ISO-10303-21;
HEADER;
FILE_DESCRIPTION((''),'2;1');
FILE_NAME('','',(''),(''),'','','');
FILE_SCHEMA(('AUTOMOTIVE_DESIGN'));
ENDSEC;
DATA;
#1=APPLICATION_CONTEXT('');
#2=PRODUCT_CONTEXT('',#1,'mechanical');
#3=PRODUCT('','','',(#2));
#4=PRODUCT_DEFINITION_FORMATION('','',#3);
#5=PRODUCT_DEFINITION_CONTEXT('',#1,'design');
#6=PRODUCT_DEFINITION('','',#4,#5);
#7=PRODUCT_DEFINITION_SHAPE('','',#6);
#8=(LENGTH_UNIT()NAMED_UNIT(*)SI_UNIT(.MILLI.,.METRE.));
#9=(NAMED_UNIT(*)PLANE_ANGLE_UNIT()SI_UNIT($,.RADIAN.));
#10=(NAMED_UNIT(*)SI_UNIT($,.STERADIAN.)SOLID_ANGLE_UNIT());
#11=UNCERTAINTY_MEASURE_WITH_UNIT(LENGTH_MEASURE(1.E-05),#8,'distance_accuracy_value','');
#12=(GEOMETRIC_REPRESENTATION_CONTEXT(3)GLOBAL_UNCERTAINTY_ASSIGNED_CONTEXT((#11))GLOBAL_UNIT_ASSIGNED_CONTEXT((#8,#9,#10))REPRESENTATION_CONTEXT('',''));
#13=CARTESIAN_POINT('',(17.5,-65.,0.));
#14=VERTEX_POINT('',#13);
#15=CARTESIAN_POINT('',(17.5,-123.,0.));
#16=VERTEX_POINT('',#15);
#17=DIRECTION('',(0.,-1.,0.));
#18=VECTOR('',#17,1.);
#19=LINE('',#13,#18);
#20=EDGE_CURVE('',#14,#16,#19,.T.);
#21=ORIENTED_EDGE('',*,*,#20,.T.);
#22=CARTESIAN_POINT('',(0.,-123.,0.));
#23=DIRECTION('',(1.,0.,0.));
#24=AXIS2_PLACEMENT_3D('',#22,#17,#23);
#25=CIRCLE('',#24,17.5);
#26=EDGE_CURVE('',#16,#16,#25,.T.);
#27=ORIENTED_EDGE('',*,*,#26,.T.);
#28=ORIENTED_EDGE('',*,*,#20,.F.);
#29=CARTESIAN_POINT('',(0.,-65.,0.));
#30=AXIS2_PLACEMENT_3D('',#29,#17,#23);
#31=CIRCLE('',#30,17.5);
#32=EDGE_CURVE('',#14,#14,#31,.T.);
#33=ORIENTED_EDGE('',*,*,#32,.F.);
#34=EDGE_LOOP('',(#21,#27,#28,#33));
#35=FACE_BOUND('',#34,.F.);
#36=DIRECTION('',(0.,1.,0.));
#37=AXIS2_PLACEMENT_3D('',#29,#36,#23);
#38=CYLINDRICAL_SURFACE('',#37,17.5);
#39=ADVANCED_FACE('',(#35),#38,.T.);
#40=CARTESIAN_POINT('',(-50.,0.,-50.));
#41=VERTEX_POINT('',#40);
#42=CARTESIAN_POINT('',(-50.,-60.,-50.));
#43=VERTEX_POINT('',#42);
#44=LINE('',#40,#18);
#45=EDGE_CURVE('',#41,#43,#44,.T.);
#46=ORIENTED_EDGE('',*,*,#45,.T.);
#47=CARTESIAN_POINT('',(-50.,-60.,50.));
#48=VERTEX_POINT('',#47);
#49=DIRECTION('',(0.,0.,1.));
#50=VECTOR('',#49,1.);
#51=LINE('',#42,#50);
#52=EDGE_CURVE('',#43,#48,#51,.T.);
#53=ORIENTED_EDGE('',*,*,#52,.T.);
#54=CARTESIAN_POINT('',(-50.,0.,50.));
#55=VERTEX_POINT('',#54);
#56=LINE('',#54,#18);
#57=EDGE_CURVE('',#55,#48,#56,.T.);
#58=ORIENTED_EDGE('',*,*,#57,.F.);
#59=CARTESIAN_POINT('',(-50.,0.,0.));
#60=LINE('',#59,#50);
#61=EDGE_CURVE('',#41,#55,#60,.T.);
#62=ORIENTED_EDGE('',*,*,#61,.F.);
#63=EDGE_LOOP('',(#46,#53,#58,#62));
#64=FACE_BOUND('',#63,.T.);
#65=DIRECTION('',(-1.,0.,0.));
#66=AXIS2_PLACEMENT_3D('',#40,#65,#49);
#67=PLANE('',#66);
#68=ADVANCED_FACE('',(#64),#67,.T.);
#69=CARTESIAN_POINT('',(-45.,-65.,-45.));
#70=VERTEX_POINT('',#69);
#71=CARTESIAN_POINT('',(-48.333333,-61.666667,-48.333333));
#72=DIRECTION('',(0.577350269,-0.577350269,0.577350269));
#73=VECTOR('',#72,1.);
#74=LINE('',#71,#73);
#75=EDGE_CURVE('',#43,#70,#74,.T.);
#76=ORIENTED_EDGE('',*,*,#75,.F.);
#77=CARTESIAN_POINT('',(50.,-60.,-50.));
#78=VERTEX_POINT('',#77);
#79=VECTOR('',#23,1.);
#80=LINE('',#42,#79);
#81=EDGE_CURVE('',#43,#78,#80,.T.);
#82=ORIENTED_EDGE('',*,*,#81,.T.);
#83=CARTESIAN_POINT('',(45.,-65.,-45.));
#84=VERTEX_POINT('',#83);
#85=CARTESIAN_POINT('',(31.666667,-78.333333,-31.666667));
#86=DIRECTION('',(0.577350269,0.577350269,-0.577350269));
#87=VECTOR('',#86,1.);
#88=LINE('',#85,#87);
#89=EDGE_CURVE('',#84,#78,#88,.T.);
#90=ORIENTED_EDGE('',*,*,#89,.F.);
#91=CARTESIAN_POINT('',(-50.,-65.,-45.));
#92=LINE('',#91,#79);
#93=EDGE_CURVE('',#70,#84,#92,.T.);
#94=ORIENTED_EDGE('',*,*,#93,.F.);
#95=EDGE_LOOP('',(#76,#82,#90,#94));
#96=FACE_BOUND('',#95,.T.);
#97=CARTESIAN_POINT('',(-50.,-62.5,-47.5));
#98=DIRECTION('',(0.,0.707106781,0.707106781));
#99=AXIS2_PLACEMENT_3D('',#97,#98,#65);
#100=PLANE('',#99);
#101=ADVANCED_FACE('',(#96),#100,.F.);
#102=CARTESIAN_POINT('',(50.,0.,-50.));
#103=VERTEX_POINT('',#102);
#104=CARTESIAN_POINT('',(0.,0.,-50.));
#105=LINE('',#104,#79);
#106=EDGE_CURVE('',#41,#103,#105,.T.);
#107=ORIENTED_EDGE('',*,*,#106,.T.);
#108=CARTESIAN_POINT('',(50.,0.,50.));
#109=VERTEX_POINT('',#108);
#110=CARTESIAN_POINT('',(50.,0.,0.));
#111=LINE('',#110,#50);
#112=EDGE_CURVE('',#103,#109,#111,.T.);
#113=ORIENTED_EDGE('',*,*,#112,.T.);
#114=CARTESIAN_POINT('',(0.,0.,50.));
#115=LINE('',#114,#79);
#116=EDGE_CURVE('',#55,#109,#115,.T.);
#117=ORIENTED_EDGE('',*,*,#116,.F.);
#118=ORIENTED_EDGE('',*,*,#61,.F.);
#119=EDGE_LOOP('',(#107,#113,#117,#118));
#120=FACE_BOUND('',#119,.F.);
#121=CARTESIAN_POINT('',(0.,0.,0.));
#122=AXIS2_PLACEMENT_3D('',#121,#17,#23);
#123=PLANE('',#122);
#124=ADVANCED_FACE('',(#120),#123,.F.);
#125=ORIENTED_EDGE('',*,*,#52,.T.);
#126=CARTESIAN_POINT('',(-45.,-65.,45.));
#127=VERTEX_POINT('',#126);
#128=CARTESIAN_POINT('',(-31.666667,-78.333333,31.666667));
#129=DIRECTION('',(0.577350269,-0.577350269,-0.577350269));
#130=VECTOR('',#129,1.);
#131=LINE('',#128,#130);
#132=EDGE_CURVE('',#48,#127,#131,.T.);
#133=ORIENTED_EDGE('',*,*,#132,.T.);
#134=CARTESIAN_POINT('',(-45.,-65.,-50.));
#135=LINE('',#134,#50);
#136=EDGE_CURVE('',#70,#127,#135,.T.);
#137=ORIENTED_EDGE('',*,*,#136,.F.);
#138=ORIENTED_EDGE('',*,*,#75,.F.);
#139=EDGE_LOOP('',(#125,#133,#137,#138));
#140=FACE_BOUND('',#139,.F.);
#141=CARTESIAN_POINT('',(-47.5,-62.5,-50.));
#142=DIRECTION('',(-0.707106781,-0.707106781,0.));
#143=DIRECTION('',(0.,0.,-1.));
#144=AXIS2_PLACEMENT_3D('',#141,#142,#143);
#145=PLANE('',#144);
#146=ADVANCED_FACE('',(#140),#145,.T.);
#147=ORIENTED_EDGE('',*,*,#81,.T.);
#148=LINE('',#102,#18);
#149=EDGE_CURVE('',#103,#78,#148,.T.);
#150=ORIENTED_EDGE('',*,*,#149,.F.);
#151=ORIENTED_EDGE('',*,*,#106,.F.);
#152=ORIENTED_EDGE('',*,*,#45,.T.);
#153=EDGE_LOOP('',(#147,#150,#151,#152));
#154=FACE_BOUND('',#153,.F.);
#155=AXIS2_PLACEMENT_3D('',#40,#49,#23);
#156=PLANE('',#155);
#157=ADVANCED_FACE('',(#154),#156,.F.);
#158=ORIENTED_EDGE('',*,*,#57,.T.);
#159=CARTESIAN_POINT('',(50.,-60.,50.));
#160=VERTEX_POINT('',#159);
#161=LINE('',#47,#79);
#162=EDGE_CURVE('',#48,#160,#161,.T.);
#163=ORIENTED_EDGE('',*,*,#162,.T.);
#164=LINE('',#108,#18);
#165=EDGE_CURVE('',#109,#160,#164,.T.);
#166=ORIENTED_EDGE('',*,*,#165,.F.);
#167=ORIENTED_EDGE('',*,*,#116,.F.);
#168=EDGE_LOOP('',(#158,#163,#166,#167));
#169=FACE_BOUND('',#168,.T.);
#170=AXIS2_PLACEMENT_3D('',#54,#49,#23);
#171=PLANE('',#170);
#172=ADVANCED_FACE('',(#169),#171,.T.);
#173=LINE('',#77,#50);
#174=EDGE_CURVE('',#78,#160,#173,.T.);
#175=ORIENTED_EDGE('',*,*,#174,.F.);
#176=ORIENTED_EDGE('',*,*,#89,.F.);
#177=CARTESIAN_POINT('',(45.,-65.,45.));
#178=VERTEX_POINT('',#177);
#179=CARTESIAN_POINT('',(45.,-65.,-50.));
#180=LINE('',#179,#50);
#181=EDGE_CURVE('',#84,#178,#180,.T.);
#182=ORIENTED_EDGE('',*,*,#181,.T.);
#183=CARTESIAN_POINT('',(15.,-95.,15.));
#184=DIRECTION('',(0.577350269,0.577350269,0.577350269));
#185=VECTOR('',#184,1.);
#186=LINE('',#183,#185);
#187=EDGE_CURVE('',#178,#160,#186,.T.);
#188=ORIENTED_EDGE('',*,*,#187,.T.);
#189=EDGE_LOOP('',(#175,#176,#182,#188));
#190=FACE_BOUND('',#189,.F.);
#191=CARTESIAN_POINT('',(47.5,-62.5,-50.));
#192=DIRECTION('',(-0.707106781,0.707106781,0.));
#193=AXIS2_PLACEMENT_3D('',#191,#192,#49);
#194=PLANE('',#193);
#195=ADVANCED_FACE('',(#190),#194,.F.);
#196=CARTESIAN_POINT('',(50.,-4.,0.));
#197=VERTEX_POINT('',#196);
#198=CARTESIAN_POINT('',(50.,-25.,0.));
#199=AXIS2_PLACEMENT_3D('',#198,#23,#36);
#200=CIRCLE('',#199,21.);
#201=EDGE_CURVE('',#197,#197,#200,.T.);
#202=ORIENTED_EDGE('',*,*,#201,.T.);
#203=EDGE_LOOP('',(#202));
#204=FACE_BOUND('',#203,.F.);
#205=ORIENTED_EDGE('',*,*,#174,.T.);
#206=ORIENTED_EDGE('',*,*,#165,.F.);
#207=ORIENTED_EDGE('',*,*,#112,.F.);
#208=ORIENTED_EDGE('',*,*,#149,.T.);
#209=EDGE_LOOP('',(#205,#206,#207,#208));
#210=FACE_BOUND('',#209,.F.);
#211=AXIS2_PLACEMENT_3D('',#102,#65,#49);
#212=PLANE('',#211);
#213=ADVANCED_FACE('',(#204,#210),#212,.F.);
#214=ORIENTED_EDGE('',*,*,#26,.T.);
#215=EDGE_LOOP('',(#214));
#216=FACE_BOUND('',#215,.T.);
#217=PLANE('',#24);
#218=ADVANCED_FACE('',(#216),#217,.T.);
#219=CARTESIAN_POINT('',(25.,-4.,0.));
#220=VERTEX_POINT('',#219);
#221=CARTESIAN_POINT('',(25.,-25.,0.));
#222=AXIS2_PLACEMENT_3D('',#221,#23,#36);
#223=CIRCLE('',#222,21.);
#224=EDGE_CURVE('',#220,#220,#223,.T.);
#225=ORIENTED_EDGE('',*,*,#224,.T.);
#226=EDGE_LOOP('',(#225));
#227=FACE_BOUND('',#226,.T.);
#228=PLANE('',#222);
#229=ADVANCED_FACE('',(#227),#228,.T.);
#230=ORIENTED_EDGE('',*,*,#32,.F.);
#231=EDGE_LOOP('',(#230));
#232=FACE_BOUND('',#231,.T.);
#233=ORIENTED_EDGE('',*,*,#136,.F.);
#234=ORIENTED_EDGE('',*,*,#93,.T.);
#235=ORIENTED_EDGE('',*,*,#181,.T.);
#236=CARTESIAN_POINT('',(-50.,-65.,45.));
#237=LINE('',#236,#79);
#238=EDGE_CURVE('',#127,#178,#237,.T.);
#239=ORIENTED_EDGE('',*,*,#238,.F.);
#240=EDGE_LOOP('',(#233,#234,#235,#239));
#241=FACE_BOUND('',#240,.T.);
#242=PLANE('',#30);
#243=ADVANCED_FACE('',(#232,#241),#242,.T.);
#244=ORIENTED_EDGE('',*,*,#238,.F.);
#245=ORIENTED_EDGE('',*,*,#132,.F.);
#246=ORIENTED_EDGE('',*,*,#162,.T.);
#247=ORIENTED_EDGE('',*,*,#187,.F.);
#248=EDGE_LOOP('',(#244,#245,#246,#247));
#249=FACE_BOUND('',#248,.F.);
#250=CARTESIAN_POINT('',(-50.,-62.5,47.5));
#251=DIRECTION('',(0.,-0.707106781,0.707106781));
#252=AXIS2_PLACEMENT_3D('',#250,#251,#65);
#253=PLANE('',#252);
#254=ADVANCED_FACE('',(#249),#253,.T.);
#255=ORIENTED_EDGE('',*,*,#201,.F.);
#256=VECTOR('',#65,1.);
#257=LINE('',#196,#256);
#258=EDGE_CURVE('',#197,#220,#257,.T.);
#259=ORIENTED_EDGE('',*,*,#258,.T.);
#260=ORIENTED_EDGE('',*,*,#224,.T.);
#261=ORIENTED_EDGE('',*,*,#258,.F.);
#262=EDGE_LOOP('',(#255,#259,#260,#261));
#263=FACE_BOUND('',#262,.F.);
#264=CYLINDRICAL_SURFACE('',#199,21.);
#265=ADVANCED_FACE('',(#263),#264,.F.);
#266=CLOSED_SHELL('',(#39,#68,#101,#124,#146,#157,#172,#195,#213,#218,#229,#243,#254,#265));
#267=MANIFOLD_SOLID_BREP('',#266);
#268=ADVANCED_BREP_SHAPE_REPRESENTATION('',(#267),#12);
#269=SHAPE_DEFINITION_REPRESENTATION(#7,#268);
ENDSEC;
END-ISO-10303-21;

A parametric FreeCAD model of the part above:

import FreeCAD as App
import Part
import Sketcher
Q = App.Units.Quantity


def edges_at(feature, points):
    """Names of the edges that pass closest to the given points."""
    edges = feature.Shape.Edges
    near = lambda p: min(range(len(edges)), key=lambda i: edges[i].distToShape(Part.Vertex(*p))[0])
    return sorted({f"Edge{near(p) + 1}" for p in points})


def add_polygon(sketch, points):
    """Adds a closed chain of lines whose ends are joined by coincident constraints."""
    first, n = sketch.GeometryCount, len(points)
    for a, b in zip(points, points[1:] + points[:1]):
        sketch.addGeometry(Part.LineSegment(App.Vector(*a, 0), App.Vector(*b, 0)), False)
    for i in range(n):
        sketch.addConstraint(Sketcher.Constraint("Coincident", first + i, 2, first + (i + 1) % n, 1))

doc = App.newDocument("Part")
body = doc.addObject("PartDesign::Body", "Body")

sketch1 = body.newObject("Sketcher::SketchObject", "Sketch")
sketch1.AttachmentSupport = (doc.getObject("XZ_Plane"), [""])
sketch1.MapMode = "FlatFace"
add_polygon(sketch1, [(-50, 50), (-50, -50), (50, -50), (50, 50)])
sketch1.addConstraint(Sketcher.Constraint("Vertical", 0))
sketch1.addConstraint(Sketcher.Constraint("Horizontal", 1))
sketch1.addConstraint(Sketcher.Constraint("Vertical", 2))
sketch1.addConstraint(Sketcher.Constraint("Horizontal", 3))
sketch1.addConstraint(Sketcher.Constraint("Symmetric", 0, 2, 2, 2, -1, 1))
sketch1.addConstraint(Sketcher.Constraint("Equal", 3, 0))
sketch1.addConstraint(Sketcher.Constraint("DistanceX", 1, 1, 1, 2, Q("100 mm")))
pad1 = body.newObject("PartDesign::Pad", "Pad")
pad1.Profile = sketch1
pad1.Length = 65

sketch2 = body.newObject("Sketcher::SketchObject", "Sketch001")
sketch2.AttachmentSupport = (doc.getObject("XZ_Plane"), [""])
sketch2.MapMode = "FlatFace"
sketch2.AttachmentOffset = App.Placement(App.Vector(0, 0, 65), App.Rotation())
sketch2.addGeometry(Part.Circle(App.Vector(0, 0, 0), App.Vector(0, 0, 1), 18), False)
sketch2.addConstraint(Sketcher.Constraint("Coincident", 0, 3, -1, 1))
sketch2.addConstraint(Sketcher.Constraint("Diameter", 0, Q("35 mm")))
pad2 = body.newObject("PartDesign::Pad", "Pad001")
pad2.Profile = sketch2
pad2.Length = 58
doc.recompute()

chamfer = body.newObject("PartDesign::Chamfer", "Chamfer")
chamfer.Base = (pad2, edges_at(pad2, [
    (50, -65, 0),
    (0, -65, -50),
    (0, -65, 50),
    (-50, -65, 0),
]))
chamfer.Size = 5

sketch3 = body.newObject("Sketcher::SketchObject", "Sketch002")
sketch3.AttachmentSupport = (doc.getObject("YZ_Plane"), [""])
sketch3.MapMode = "FlatFace"
sketch3.AttachmentOffset = App.Placement(App.Vector(0, 0, 50), App.Rotation())
sketch3.addGeometry(Part.Circle(App.Vector(-25, 0, 0), App.Vector(0, 0, 1), 21), False)
sketch3.addConstraint(Sketcher.Constraint("PointOnObject", 0, 3, -1))
sketch3.addConstraint(Sketcher.Constraint("Diameter", 0, Q("42 mm")))
sketch3.addConstraint(Sketcher.Constraint("DistanceX", 0, 3, -1, 1, Q("25 mm")))
pocket1 = body.newObject("PartDesign::Pocket", "Pocket")
pocket1.Profile = sketch3
pocket1.Length = 25

doc.recompute()
